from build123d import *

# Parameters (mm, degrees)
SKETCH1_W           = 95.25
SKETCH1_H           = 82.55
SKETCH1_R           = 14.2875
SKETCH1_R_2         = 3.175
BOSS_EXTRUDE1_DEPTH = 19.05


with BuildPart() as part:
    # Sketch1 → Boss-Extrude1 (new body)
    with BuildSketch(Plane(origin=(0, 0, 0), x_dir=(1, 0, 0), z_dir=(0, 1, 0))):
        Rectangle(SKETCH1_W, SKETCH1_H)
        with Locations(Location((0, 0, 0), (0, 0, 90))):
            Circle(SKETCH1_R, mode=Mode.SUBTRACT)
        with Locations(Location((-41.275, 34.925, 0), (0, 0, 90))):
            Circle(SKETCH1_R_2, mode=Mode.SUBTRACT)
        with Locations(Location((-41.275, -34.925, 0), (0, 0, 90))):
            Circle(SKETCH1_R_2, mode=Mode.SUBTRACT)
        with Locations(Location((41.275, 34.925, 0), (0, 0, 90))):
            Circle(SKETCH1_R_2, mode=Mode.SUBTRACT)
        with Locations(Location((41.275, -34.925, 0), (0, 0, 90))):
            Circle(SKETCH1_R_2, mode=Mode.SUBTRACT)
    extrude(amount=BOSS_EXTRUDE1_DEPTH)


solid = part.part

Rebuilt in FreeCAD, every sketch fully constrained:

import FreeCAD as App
import Part
import Sketcher
from FreeCAD import Vector
Q = App.Units.Quantity


def add_polygon(sketch, points):
    """Adds a closed chain of lines whose ends are joined by coincident constraints."""
    first, n = sketch.GeometryCount, len(points)
    for a, b in zip(points, points[1:] + points[:1]):
        sketch.addGeometry(Part.LineSegment(App.Vector(*a, 0), App.Vector(*b, 0)), False)
    for i in range(n):
        sketch.addConstraint(Sketcher.Constraint("Coincident", first + i, 2, first + (i + 1) % n, 1))

doc = App.newDocument("Part")
body = doc.addObject("PartDesign::Body", "Body")

# Sketch on XZ plane
sketch1 = body.newObject("Sketcher::SketchObject", "Sketch")
sketch1.AttachmentSupport = (doc.getObject("XZ_Plane"), [""])
sketch1.MapMode = "FlatFace"
add_polygon(sketch1, [(-47.6, -41.3), (-47.6, 41.3), (47.6, 41.3), (47.6, -41.3)])  # lines 0-3
sketch1.addGeometry(Part.Circle(Vector(-41.3, 34.9, 0), Vector(0, 0, 1), 3.2), False)  # 4
sketch1.addGeometry(Part.Circle(Vector(41.3, 34.9, 0), Vector(0, 0, 1), 3.2), False)  # 5
sketch1.addGeometry(Part.Circle(Vector(-41.3, -34.9, 0), Vector(0, 0, 1), 3.2), False)  # 6
sketch1.addGeometry(Part.Circle(Vector(0, 0, 0), Vector(0, 0, 1), 14.3), False)  # 7
sketch1.addGeometry(Part.Circle(Vector(41.3, -34.9, 0), Vector(0, 0, 1), 3.2), False)  # 8
sketch1.addConstraint([
    Sketcher.Constraint("Vertical", 0),
    Sketcher.Constraint("Horizontal", 1),
    Sketcher.Constraint("Vertical", 2),
    Sketcher.Constraint("Horizontal", 3),
    Sketcher.Constraint("Coincident", 7, 3, -1, 1),
    Sketcher.Constraint("Equal", 4, 5),
    Sketcher.Constraint("Equal", 5, 6),
    Sketcher.Constraint("Equal", 6, 8),
    Sketcher.Constraint("Symmetric", 5, 3, 6, 3, -1, 1),
    Sketcher.Constraint("Symmetric", 4, 3, 8, 3, -1, 1),
    Sketcher.Constraint("Symmetric", 0, 2, 2, 2, -1, 1),
    Sketcher.Constraint("Symmetric", 4, 3, 5, 3, -2),
    Sketcher.Constraint("Diameter", 4, Q("0.25 in")),
    Sketcher.Constraint("Diameter", 7, Q("1.125 in")),
    Sketcher.Constraint("DistanceY", 6, 3, 0, 2, Q("3 in")),
    Sketcher.Constraint("DistanceX", 1, 1, 1, 2, Q("3.75 in")),
    Sketcher.Constraint("DistanceY", 0, 1, 0, 2, Q("3.25 in")),
    Sketcher.Constraint("DistanceX", 0, 2, 5, 3, Q("3.5 in")),
])
pad1 = body.newObject("PartDesign::Pad", "Pad")
pad1.Profile = sketch1
pad1.Length = Q("0.75 in")
pad1.Reversed = True

doc.recompute()
